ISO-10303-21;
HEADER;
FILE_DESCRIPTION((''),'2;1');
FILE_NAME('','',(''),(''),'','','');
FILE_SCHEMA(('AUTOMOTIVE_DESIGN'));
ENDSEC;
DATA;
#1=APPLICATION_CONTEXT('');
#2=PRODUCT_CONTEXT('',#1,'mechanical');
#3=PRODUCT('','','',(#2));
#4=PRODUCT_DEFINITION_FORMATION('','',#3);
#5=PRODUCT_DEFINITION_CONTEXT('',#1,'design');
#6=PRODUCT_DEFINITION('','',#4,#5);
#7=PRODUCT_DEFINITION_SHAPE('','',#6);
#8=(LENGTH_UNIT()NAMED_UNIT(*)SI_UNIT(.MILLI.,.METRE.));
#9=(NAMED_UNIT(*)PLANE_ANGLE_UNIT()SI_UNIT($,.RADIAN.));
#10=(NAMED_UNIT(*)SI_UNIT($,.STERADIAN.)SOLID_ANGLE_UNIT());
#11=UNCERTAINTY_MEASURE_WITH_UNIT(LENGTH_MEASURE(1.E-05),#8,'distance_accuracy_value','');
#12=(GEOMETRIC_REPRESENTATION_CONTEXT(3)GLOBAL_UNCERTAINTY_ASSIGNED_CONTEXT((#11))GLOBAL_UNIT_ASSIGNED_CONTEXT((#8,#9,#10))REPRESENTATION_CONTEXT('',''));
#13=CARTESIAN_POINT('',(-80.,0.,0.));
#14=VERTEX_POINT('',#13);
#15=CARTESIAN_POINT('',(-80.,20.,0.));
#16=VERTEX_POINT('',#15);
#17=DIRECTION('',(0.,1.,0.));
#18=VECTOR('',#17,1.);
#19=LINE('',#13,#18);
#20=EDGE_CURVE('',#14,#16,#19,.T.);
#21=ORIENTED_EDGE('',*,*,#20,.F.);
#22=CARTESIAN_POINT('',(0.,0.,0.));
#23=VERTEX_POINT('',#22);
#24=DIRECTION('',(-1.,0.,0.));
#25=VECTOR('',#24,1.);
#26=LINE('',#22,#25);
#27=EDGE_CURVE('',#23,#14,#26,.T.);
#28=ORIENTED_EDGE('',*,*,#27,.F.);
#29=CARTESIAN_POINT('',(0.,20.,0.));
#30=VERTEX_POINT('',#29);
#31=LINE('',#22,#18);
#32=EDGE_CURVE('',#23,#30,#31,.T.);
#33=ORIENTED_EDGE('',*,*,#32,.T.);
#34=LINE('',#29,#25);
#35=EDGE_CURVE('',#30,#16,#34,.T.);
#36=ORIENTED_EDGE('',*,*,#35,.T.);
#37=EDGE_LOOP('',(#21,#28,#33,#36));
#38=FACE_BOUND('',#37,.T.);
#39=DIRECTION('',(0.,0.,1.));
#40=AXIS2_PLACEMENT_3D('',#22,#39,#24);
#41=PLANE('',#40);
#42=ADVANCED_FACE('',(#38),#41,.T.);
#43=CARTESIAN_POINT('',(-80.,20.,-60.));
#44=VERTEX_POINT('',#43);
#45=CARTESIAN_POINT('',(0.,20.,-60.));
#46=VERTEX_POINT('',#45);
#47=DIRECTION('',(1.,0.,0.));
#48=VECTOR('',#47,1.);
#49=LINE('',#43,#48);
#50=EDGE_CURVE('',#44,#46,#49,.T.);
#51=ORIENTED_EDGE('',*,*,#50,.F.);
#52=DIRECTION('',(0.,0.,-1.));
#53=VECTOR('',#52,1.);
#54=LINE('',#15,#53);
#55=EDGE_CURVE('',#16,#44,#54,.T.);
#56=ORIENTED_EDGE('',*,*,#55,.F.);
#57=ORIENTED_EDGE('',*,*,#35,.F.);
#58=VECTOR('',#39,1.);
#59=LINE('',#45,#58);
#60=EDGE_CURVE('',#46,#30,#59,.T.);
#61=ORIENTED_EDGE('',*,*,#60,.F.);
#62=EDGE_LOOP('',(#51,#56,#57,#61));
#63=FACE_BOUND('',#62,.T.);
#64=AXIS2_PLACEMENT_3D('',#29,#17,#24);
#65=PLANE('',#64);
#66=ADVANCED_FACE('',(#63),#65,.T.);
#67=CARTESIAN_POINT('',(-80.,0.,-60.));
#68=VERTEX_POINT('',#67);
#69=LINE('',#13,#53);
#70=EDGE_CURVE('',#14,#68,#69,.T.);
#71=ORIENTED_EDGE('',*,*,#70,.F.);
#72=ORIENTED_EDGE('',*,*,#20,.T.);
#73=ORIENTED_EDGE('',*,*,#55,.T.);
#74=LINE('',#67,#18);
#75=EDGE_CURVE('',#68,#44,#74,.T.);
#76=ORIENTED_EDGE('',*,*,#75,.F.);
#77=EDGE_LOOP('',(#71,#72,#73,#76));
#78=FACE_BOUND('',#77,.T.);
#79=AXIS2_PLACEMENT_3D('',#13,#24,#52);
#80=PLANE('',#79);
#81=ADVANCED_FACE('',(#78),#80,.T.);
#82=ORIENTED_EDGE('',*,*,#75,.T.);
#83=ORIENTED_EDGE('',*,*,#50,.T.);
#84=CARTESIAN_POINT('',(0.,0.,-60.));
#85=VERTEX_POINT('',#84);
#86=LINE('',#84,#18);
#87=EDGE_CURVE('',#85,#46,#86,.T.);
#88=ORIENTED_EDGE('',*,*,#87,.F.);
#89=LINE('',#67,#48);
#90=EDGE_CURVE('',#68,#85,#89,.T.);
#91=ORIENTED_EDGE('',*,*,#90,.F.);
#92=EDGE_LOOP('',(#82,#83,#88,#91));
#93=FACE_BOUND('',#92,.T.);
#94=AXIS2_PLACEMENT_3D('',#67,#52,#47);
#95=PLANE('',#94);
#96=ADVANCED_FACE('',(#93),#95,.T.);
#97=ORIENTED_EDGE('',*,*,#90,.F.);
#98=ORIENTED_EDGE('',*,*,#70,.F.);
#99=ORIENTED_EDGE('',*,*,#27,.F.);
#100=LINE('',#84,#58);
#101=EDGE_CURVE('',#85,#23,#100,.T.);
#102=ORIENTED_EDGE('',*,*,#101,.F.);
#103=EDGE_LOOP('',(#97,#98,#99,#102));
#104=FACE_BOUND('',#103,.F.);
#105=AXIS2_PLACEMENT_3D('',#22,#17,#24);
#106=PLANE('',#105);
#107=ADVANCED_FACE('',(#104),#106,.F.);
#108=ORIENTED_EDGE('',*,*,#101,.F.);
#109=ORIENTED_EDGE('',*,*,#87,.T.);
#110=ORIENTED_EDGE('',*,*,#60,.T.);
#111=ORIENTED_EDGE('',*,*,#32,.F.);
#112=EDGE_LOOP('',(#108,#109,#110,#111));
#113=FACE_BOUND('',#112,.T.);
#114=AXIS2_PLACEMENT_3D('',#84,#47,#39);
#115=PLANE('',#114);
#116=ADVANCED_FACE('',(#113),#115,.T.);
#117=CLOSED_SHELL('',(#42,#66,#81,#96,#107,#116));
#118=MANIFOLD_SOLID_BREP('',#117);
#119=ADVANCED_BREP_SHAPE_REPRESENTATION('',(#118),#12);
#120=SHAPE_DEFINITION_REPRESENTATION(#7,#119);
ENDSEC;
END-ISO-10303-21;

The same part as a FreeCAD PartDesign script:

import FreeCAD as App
import Part
import Sketcher

V = App.Vector

doc = App.newDocument("Part")
body = doc.addObject("PartDesign::Body", "Body")

# Sketch on XZ plane
sketch1 = body.newObject("Sketcher::SketchObject", "Sketch")
sketch1.AttachmentSupport = (doc.getObject("XZ_Plane"), [""])
sketch1.MapMode = "FlatFace"
sketch1.addGeometry(Part.LineSegment(V(-80, 0, 0), V(0, 0, 0)), False)
sketch1.addGeometry(Part.LineSegment(V(0, 0, 0), V(0, -60, 0)), False)
sketch1.addGeometry(Part.LineSegment(V(0, -60, 0), V(-80, -60, 0)), False)
sketch1.addGeometry(Part.LineSegment(V(-80, -60, 0), V(-80, 0, 0)), False)
sketch1.addConstraint(Sketcher.Constraint("Coincident", 0, 2, 1, 1))
sketch1.addConstraint(Sketcher.Constraint("Coincident", 1, 2, 2, 1))
sketch1.addConstraint(Sketcher.Constraint("Coincident", 2, 2, 3, 1))
sketch1.addConstraint(Sketcher.Constraint("Coincident", 3, 2, 0, 1))
sketch1.addConstraint(Sketcher.Constraint("Horizontal", 0))
sketch1.addConstraint(Sketcher.Constraint("Vertical", 1))
sketch1.addConstraint(Sketcher.Constraint("Horizontal", 2))
sketch1.addConstraint(Sketcher.Constraint("Vertical", 3))
sketch1.addConstraint(Sketcher.Constraint("Coincident", 0, 2, -1, 1))
sketch1.addConstraint(Sketcher.Constraint("DistanceX", 0, 1, 0, 2, 80.0))
sketch1.addConstraint(Sketcher.Constraint("DistanceY", 1, 2, 1, 1, 60.0))
pad1 = body.newObject("PartDesign::Pad", "Pad")
pad1.Profile = sketch1
pad1.Length = 20
pad1.Reversed = True

doc.recompute()
